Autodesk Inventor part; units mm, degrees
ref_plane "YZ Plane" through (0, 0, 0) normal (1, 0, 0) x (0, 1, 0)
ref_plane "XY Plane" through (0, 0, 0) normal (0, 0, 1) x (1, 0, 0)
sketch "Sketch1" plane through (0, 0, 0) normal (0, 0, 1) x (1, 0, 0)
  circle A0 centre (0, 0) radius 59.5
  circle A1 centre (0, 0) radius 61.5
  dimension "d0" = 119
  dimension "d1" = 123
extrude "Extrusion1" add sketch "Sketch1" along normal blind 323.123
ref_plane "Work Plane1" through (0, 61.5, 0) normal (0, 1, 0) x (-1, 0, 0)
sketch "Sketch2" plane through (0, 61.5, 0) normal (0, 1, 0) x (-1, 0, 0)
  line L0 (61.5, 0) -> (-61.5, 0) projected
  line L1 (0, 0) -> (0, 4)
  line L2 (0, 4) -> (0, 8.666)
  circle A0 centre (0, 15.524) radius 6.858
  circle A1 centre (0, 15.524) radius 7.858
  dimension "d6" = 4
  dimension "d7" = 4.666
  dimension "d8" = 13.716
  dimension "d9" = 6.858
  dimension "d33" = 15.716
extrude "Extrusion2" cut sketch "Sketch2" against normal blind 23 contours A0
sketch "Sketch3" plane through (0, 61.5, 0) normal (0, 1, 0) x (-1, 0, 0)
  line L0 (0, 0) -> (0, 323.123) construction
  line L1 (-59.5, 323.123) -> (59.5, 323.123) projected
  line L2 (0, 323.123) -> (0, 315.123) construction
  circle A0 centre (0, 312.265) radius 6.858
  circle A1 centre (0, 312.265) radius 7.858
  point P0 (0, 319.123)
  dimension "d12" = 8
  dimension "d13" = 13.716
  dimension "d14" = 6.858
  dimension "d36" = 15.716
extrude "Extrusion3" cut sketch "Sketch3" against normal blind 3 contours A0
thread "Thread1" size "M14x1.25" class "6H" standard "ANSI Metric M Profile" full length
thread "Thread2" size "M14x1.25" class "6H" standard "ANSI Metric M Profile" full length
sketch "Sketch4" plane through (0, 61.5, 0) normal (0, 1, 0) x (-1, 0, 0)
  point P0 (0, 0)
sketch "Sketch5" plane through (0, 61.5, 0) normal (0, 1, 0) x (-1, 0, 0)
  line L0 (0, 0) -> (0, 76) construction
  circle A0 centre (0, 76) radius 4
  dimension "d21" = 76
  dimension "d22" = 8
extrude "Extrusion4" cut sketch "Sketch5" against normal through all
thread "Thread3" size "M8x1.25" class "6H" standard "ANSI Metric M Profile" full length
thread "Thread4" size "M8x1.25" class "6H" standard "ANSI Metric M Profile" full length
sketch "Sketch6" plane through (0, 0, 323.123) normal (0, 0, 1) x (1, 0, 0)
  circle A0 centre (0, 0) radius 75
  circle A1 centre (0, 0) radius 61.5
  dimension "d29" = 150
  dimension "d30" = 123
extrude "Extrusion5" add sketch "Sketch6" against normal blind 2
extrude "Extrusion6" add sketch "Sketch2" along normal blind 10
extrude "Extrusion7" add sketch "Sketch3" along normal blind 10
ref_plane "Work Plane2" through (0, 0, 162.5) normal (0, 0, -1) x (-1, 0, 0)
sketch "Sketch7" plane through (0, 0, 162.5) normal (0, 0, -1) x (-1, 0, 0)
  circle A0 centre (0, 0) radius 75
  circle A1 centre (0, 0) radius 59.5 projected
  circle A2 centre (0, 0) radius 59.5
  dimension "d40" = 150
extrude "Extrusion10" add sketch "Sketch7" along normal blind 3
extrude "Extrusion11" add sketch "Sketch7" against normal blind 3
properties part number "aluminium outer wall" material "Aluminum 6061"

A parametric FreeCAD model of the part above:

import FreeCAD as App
import Part
import Sketcher

V = App.Vector

doc = App.newDocument("Part")
body = doc.addObject("PartDesign::Body", "Body")
body.AllowCompound = True

# Sketch on XY plane
sketch1 = body.newObject("Sketcher::SketchObject", "Sketch")
sketch1.AttachmentSupport = (doc.getObject("XY_Plane"), [""])
sketch1.MapMode = "FlatFace"
sketch1.addGeometry(Part.Circle(V(0, 0, 0), V(0, 0, 1), 62), False)
sketch1.addGeometry(Part.Circle(V(0, 0, 0), V(0, 0, 1), 60), False)
sketch1.addConstraint(Sketcher.Constraint("Coincident", 0, 3, -1, 1))
sketch1.addConstraint(Sketcher.Constraint("Coincident", 1, 3, -1, 1))
sketch1.addConstraint(Sketcher.Constraint("Diameter", 0, 123.0))
sketch1.addConstraint(Sketcher.Constraint("Diameter", 1, 119.0))
pad1 = body.newObject("PartDesign::Pad", "Pad")
pad1.Profile = sketch1
pad1.Length = 323.123

# Sketch on XZ plane
sketch2 = body.newObject("Sketcher::SketchObject", "Sketch001")
sketch2.AttachmentSupport = (doc.getObject("XZ_Plane"), [""])
sketch2.MapMode = "FlatFace"
sketch2.AttachmentOffset = App.Placement(V(0, 0, -61.5), App.Rotation())
sketch2.addGeometry(Part.Circle(V(0, 16, 0), V(0, 0, 1), 7), False)
sketch2.addConstraint(Sketcher.Constraint("PointOnObject", 0, 3, -2))
sketch2.addConstraint(Sketcher.Constraint("Diameter", 0, 13.716))
sketch2.addConstraint(Sketcher.Constraint("DistanceY", -1, 1, 0, 3, 15.524))
pocket1 = body.newObject("PartDesign::Pocket", "Pocket")
pocket1.Profile = sketch2
pocket1.Length = 23
pocket1.Reversed = True

# Sketch on XZ plane
sketch3 = body.newObject("Sketcher::SketchObject", "Sketch002")
sketch3.AttachmentSupport = (doc.getObject("XZ_Plane"), [""])
sketch3.MapMode = "FlatFace"
sketch3.AttachmentOffset = App.Placement(V(0, 0, -61.5), App.Rotation())
sketch3.addGeometry(Part.Circle(V(0, 312, 0), V(0, 0, 1), 7), False)
sketch3.addConstraint(Sketcher.Constraint("PointOnObject", 0, 3, -2))
sketch3.addConstraint(Sketcher.Constraint("Diameter", 0, 13.716))
sketch3.addConstraint(Sketcher.Constraint("DistanceY", -1, 1, 0, 3, 312.265))
pocket2 = body.newObject("PartDesign::Pocket", "Pocket001")
pocket2.Profile = sketch3
pocket2.Length = 3
pocket2.Reversed = True

# Sketch on XZ plane
sketch4 = body.newObject("Sketcher::SketchObject", "Sketch003")
sketch4.AttachmentSupport = (doc.getObject("XZ_Plane"), [""])
sketch4.MapMode = "FlatFace"
sketch4.AttachmentOffset = App.Placement(V(0, 0, -61.5), App.Rotation())
sketch4.addGeometry(Part.Circle(V(0, 76, 0), V(0, 0, 1), 4), False)
sketch4.addConstraint(Sketcher.Constraint("PointOnObject", 0, 3, -2))
sketch4.addConstraint(Sketcher.Constraint("Diameter", 0, 8.0))
sketch4.addConstraint(Sketcher.Constraint("DistanceY", -1, 1, 0, 3, 76.0))
pocket3 = body.newObject("PartDesign::Pocket", "Pocket002")
pocket3.Profile = sketch4
pocket3.Type = "ThroughAll"
pocket3.Reversed = True

# Sketch on XY plane
sketch5 = body.newObject("Sketcher::SketchObject", "Sketch004")
sketch5.AttachmentSupport = (doc.getObject("XY_Plane"), [""])
sketch5.MapMode = "FlatFace"
sketch5.AttachmentOffset = App.Placement(V(0, 0, 323.123), App.Rotation())
sketch5.addGeometry(Part.Circle(V(0, 0, 0), V(0, 0, 1), 75), False)
sketch5.addGeometry(Part.Circle(V(0, 0, 0), V(0, 0, 1), 62), False)
sketch5.addConstraint(Sketcher.Constraint("Coincident", 0, 3, -1, 1))
sketch5.addConstraint(Sketcher.Constraint("Coincident", 1, 3, -1, 1))
sketch5.addConstraint(Sketcher.Constraint("Diameter", 0, 150.0))
sketch5.addConstraint(Sketcher.Constraint("Diameter", 1, 123.0))
pad2 = body.newObject("PartDesign::Pad", "Pad001")
pad2.Profile = sketch5
pad2.Length = 2
pad2.Reversed = True

# Sketch on XZ plane
sketch6 = body.newObject("Sketcher::SketchObject", "Sketch005")
sketch6.AttachmentSupport = (doc.getObject("XZ_Plane"), [""])
sketch6.MapMode = "FlatFace"
sketch6.AttachmentOffset = App.Placement(V(0, 0, -61.5), App.Rotation())
sketch6.addGeometry(Part.Circle(V(0, 16, 0), V(0, 0, 1), 8), False)
sketch6.addGeometry(Part.Circle(V(0, 16, 0), V(0, 0, 1), 7), False)
sketch6.addConstraint(Sketcher.Constraint("Coincident", 1, 3, 0, 3))
sketch6.addConstraint(Sketcher.Constraint("PointOnObject", 0, 3, -2))
sketch6.addConstraint(Sketcher.Constraint("Diameter", 0, 15.716))
sketch6.addConstraint(Sketcher.Constraint("Diameter", 1, 13.716))
sketch6.addConstraint(Sketcher.Constraint("DistanceY", -1, 1, 0, 3, 15.524))
pad3 = body.newObject("PartDesign::Pad", "Pad002")
pad3.Profile = sketch6
pad3.Length = 10
pad3.Reversed = True

# Sketch on XZ plane
sketch7 = body.newObject("Sketcher::SketchObject", "Sketch006")
sketch7.AttachmentSupport = (doc.getObject("XZ_Plane"), [""])
sketch7.MapMode = "FlatFace"
sketch7.AttachmentOffset = App.Placement(V(0, 0, -61.5), App.Rotation())
sketch7.addGeometry(Part.Circle(V(0, 312, 0), V(0, 0, 1), 8), False)
sketch7.addGeometry(Part.Circle(V(0, 312, 0), V(0, 0, 1), 7), False)
sketch7.addConstraint(Sketcher.Constraint("Coincident", 1, 3, 0, 3))
sketch7.addConstraint(Sketcher.Constraint("PointOnObject", 0, 3, -2))
sketch7.addConstraint(Sketcher.Constraint("Diameter", 0, 15.716))
sketch7.addConstraint(Sketcher.Constraint("Diameter", 1, 13.716))
sketch7.addConstraint(Sketcher.Constraint("DistanceY", -1, 1, 0, 3, 312.265))
pad4 = body.newObject("PartDesign::Pad", "Pad003")
pad4.Profile = sketch7
pad4.Length = 10
pad4.Reversed = True

# Sketch on XY plane
sketch8 = body.newObject("Sketcher::SketchObject", "Sketch007")
sketch8.AttachmentSupport = (doc.getObject("XY_Plane"), [""])
sketch8.MapMode = "FlatFace"
sketch8.AttachmentOffset = App.Placement(V(0, 0, 162.5), App.Rotation())
sketch8.addGeometry(Part.Circle(V(0, 0, 0), V(0, 0, 1), 75), False)
sketch8.addGeometry(Part.Circle(V(0, 0, 0), V(0, 0, 1), 60), False)
sketch8.addConstraint(Sketcher.Constraint("Coincident", 0, 3, -1, 1))
sketch8.addConstraint(Sketcher.Constraint("Coincident", 1, 3, -1, 1))
sketch8.addConstraint(Sketcher.Constraint("Diameter", 0, 150.0))
sketch8.addConstraint(Sketcher.Constraint("Diameter", 1, 119.0))
pad5 = body.newObject("PartDesign::Pad", "Pad004")
pad5.Profile = sketch8
pad5.Length = 3
pad5.Reversed = True

# Sketch on XY plane
sketch9 = body.newObject("Sketcher::SketchObject", "Sketch008")
sketch9.AttachmentSupport = (doc.getObject("XY_Plane"), [""])
sketch9.MapMode = "FlatFace"
sketch9.AttachmentOffset = App.Placement(V(0, 0, 162.5), App.Rotation())
sketch9.addGeometry(Part.Circle(V(0, 0, 0), V(0, 0, 1), 75), False)
sketch9.addGeometry(Part.Circle(V(0, 0, 0), V(0, 0, 1), 60), False)
sketch9.addConstraint(Sketcher.Constraint("Coincident", 0, 3, -1, 1))
sketch9.addConstraint(Sketcher.Constraint("Coincident", 1, 3, -1, 1))
sketch9.addConstraint(Sketcher.Constraint("Diameter", 0, 150.0))
sketch9.addConstraint(Sketcher.Constraint("Diameter", 1, 119.0))
pad6 = body.newObject("PartDesign::Pad", "Pad005")
pad6.Profile = sketch9
pad6.Length = 3

doc.recompute()
